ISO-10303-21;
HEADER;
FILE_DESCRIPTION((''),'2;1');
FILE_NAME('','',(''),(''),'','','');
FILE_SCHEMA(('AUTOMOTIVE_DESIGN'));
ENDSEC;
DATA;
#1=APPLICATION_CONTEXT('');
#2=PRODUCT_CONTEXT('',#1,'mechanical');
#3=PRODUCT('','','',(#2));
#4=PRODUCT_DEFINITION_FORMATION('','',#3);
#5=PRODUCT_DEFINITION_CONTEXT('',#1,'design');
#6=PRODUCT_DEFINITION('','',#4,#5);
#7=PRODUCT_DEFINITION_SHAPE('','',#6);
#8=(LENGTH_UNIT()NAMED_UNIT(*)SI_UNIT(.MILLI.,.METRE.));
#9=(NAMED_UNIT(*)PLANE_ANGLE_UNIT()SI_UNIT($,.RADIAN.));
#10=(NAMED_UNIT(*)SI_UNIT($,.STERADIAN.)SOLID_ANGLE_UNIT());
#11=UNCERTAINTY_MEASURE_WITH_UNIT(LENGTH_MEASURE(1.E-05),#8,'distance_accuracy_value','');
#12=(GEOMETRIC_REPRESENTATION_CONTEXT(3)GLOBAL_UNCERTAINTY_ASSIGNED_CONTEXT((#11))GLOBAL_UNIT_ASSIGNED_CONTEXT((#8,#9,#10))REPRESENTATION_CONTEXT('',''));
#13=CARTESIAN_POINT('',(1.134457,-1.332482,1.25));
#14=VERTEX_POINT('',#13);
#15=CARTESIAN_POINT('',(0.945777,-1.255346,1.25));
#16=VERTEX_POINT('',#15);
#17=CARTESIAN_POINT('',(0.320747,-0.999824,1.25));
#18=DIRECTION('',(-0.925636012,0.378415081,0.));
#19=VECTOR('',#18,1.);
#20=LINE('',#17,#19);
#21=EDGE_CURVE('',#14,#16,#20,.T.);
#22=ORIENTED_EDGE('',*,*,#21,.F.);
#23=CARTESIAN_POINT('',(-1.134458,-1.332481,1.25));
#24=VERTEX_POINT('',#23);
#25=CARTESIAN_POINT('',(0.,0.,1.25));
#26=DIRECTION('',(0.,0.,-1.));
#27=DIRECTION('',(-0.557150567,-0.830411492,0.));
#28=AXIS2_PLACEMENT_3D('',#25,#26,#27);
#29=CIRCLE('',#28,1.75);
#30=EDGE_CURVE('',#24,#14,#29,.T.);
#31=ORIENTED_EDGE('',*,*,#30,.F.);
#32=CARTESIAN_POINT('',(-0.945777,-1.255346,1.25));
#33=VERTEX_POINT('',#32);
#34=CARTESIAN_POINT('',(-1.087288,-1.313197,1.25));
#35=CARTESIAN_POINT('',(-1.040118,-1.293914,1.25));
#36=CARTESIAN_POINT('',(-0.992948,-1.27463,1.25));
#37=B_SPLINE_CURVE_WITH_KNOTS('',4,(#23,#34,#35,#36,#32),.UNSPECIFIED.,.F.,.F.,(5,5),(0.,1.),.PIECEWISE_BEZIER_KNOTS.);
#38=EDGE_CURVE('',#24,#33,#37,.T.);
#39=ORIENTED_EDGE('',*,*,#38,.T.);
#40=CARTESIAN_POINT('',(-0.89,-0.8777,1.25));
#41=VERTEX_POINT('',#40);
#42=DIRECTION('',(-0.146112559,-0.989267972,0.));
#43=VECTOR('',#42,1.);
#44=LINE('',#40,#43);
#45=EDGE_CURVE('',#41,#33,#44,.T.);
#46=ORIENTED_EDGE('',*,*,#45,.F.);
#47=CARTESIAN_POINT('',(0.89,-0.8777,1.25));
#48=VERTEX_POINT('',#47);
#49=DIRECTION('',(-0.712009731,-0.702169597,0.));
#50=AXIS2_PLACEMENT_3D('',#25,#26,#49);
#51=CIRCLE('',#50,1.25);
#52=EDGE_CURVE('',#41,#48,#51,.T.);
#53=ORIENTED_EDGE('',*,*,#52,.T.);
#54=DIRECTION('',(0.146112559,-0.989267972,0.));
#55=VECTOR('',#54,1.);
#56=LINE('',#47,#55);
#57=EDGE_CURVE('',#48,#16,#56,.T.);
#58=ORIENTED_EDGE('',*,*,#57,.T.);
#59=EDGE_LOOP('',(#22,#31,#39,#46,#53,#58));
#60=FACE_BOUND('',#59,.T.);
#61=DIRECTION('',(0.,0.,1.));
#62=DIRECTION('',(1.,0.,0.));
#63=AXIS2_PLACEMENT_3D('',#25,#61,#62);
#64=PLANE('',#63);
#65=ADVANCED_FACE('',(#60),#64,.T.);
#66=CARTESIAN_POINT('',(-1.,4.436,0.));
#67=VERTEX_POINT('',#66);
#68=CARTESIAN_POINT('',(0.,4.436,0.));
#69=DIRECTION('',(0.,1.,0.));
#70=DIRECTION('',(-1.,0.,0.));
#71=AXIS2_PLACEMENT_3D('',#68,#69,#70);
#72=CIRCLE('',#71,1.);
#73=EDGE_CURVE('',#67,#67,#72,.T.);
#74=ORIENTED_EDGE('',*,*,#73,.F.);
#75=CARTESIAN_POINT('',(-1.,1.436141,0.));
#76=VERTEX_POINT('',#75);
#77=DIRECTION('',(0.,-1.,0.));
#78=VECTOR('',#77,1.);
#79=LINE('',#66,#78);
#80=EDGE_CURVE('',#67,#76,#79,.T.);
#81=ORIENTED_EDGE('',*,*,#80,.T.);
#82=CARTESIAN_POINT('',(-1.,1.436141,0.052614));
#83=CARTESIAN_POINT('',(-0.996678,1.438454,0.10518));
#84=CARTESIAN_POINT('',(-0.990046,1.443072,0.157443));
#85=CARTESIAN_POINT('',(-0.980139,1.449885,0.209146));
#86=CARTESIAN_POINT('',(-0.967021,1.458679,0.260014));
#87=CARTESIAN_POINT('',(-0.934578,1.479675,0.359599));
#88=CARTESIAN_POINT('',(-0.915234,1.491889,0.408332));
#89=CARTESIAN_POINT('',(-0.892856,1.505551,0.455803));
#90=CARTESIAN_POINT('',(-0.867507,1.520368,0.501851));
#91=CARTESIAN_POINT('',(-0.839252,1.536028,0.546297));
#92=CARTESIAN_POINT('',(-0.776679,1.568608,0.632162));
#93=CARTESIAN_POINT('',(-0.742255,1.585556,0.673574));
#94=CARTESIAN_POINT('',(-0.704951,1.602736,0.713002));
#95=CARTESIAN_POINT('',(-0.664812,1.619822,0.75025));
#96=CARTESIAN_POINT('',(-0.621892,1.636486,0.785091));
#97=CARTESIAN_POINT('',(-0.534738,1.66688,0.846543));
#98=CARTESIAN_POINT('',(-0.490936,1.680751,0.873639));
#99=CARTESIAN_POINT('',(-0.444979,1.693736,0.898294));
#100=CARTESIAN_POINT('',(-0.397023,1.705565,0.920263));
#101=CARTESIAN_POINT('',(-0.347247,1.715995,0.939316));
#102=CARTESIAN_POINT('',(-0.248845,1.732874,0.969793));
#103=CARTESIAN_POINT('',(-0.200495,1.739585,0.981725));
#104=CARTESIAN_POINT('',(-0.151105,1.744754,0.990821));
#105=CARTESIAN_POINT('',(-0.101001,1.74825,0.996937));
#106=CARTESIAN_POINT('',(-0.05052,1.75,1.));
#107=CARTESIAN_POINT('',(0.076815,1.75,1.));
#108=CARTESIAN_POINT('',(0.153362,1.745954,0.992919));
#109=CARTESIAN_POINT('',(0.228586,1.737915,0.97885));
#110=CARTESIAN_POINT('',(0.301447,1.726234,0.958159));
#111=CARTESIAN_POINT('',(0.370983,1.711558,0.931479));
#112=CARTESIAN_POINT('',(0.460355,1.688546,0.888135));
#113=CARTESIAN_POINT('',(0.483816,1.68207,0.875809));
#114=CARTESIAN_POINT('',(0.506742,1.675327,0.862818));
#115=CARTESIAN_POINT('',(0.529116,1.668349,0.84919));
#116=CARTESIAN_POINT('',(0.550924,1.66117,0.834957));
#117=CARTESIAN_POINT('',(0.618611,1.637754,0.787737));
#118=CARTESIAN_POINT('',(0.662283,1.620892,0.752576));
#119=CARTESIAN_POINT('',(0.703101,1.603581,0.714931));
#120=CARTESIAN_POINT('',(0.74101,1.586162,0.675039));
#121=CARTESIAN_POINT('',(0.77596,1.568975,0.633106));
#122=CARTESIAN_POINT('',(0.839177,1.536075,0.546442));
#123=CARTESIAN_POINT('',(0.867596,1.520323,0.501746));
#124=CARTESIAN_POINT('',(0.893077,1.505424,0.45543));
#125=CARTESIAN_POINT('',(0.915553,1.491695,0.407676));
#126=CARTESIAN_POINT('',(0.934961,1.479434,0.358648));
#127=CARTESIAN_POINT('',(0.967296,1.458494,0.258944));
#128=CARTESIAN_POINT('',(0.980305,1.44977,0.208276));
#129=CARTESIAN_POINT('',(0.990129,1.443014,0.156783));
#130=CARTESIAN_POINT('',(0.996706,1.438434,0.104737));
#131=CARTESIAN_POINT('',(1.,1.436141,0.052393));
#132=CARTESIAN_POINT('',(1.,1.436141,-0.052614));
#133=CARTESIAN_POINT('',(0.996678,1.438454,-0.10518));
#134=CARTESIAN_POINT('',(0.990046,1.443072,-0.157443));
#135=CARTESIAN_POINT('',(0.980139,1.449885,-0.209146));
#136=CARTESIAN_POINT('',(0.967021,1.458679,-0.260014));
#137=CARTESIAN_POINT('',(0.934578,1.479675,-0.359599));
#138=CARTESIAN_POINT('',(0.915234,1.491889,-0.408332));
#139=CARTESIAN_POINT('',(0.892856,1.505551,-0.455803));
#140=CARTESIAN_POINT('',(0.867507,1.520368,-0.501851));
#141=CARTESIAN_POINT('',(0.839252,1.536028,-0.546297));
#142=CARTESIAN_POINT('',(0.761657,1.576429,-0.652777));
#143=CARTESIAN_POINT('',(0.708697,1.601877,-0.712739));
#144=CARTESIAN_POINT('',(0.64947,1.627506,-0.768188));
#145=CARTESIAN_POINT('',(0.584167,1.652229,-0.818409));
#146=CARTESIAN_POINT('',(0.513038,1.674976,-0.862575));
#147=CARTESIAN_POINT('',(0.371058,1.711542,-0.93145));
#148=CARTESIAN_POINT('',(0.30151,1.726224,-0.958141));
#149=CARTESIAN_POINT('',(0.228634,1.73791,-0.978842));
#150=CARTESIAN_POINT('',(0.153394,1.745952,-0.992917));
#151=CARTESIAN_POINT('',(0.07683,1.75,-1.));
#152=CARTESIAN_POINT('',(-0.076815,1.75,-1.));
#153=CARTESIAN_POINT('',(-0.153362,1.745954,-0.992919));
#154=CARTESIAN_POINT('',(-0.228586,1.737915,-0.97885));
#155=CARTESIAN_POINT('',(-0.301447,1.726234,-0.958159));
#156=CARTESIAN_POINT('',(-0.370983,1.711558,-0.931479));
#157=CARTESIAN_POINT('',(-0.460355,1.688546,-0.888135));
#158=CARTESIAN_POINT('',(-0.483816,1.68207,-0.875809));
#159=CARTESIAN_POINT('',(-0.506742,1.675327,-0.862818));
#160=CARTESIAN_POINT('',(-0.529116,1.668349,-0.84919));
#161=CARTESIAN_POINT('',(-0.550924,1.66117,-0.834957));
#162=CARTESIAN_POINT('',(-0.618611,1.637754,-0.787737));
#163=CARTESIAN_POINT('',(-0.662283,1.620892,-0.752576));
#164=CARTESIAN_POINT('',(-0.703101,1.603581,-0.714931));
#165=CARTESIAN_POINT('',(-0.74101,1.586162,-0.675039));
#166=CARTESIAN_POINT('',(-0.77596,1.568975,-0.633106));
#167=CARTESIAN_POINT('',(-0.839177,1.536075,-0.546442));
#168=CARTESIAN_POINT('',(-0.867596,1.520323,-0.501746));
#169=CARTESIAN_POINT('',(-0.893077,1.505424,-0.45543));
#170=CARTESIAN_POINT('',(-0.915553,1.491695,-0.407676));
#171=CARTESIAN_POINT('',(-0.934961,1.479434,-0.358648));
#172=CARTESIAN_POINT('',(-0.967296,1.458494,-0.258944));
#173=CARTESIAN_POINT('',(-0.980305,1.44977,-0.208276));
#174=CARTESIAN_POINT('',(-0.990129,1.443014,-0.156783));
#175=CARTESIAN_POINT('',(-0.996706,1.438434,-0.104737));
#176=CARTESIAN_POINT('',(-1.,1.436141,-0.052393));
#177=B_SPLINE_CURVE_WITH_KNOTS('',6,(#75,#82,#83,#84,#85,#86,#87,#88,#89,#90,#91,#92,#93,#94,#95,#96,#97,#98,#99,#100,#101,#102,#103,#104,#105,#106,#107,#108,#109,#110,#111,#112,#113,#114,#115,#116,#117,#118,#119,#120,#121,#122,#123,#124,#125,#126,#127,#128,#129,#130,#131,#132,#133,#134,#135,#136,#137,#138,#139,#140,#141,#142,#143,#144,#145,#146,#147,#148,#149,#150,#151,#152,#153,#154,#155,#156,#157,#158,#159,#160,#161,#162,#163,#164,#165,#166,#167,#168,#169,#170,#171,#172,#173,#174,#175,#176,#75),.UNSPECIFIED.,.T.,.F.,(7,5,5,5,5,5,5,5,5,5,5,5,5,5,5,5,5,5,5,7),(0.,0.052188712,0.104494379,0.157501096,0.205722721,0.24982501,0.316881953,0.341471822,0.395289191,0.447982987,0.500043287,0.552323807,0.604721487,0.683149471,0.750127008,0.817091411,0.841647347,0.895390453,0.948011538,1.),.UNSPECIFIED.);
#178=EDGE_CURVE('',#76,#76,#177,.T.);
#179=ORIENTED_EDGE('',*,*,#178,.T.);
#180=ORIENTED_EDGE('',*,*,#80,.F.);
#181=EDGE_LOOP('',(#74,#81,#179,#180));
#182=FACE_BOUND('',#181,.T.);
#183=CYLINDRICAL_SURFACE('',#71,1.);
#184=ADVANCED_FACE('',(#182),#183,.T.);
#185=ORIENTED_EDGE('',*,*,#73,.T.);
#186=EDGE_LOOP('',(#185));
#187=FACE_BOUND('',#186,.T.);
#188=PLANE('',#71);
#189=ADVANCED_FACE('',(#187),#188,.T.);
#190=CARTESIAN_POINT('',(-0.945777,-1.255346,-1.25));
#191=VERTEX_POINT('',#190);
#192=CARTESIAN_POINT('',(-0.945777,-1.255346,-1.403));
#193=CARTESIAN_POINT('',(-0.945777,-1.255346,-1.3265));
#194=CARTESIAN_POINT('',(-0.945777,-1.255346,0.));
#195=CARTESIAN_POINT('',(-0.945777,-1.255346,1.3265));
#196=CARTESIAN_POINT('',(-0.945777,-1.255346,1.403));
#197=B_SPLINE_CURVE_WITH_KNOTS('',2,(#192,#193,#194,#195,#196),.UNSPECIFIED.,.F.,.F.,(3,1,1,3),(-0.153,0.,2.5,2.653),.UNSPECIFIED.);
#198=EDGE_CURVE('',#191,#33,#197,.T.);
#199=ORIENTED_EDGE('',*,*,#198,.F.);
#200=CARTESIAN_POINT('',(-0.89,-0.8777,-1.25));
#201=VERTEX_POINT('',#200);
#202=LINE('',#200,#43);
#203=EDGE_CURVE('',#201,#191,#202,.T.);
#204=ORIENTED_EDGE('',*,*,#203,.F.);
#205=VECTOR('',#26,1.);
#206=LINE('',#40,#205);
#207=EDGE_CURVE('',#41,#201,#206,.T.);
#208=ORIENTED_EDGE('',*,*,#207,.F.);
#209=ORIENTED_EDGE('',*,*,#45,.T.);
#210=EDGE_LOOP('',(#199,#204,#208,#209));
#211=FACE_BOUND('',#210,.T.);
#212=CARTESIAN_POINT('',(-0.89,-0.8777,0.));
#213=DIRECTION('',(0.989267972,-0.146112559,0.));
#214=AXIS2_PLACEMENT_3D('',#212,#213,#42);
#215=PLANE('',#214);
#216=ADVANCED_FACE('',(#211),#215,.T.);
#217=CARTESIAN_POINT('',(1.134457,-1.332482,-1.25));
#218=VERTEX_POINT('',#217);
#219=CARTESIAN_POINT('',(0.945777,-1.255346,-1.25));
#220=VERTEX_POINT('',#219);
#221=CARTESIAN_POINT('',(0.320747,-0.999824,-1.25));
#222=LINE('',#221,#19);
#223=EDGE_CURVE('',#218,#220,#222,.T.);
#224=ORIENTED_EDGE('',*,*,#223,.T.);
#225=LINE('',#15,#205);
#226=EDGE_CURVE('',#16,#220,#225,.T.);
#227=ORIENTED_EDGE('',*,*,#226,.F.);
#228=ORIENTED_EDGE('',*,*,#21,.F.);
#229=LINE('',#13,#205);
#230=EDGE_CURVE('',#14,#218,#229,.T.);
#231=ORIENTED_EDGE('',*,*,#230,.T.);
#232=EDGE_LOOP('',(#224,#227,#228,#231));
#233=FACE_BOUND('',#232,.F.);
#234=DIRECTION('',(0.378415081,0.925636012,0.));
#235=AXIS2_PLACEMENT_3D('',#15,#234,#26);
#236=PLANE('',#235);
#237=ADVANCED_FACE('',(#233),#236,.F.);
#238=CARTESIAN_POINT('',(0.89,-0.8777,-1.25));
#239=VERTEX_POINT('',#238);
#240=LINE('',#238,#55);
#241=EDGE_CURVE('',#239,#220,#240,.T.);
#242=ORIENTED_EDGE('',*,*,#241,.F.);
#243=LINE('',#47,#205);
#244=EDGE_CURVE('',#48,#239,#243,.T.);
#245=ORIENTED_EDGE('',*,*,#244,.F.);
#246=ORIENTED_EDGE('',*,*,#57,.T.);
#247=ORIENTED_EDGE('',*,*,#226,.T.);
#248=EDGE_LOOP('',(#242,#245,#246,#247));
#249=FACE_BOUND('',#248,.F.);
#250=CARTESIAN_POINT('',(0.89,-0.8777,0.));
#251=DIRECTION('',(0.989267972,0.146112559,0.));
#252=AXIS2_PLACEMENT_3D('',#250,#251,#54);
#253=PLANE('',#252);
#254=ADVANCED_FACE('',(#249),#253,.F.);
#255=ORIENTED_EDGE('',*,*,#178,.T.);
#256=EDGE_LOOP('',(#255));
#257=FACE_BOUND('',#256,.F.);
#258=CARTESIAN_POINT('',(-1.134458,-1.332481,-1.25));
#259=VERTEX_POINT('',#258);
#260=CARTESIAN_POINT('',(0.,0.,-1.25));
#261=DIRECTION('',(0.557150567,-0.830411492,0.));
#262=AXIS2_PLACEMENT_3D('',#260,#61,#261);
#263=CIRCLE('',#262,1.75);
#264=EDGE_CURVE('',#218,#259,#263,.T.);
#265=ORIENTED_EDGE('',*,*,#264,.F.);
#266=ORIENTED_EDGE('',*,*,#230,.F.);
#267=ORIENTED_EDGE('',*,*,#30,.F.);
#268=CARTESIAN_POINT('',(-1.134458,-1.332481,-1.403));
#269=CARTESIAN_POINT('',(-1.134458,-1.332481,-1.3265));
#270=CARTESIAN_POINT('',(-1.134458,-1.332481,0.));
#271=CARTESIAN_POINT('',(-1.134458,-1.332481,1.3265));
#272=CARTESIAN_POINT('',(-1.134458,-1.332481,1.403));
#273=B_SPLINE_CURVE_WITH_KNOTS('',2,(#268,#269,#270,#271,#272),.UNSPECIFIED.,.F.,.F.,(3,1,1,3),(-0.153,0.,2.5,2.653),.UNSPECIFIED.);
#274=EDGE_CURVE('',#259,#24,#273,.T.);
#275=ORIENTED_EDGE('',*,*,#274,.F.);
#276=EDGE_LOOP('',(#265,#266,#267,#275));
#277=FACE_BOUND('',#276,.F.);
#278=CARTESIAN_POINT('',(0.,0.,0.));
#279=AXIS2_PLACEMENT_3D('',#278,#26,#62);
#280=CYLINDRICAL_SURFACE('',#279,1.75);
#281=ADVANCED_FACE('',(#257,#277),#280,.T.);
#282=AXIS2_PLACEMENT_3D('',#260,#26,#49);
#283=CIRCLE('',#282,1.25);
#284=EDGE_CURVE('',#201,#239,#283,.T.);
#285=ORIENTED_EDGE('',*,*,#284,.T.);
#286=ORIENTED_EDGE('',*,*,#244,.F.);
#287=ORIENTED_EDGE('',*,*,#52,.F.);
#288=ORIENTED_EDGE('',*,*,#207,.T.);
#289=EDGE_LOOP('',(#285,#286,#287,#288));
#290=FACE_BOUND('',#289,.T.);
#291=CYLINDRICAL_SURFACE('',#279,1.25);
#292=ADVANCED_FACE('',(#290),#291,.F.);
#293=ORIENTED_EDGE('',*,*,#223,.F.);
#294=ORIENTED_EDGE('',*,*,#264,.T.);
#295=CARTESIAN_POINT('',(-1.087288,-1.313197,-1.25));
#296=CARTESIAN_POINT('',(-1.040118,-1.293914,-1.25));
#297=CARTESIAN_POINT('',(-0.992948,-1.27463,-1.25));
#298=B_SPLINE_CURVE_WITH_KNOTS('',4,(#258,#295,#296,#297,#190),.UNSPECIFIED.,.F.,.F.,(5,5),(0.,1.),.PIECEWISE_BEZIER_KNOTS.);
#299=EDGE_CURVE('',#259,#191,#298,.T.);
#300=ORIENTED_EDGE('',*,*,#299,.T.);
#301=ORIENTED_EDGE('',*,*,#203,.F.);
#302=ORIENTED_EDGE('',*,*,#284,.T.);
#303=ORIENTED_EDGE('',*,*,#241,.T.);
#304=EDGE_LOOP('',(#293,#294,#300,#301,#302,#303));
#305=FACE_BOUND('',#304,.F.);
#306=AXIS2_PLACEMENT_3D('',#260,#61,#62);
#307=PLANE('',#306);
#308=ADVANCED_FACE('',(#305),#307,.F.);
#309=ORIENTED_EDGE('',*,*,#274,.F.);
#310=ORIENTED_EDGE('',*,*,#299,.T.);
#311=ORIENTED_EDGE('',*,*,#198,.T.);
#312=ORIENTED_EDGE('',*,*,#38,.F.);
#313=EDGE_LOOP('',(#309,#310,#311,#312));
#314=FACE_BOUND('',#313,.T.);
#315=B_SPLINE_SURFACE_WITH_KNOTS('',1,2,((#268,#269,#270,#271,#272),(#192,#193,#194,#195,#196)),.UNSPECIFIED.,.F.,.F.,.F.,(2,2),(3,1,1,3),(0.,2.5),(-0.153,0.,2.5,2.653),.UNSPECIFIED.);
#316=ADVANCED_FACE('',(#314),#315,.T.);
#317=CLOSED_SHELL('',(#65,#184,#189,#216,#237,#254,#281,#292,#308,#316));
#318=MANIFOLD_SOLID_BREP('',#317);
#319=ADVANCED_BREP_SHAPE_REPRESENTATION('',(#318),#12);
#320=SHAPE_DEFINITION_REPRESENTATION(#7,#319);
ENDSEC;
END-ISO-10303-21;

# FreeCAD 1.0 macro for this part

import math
import FreeCAD as App
import Part
import Sketcher
Q = App.Units.Quantity


def edges_at(feature, points):
    """Names of the edges that pass closest to the given points."""
    edges = feature.Shape.Edges
    near = lambda p: min(range(len(edges)), key=lambda i: edges[i].distToShape(Part.Vertex(*p))[0])
    return sorted({f"Edge{near(p) + 1}" for p in points})

doc = App.newDocument("Part")
body = doc.addObject("PartDesign::Body", "Body")

# Sketch on XY plane
sketch1 = body.newObject("Sketcher::SketchObject", "Sketch")
sketch1.AttachmentSupport = (doc.getObject("XY_Plane"), [""])
sketch1.MapMode = "FlatFace"
sketch1.addGeometry(Part.ArcOfCircle(Part.Circle(App.Vector(0, 0, 0), App.Vector(0, 0, 1), 1.75), math.radians(-56.141031), math.radians(236.141031)), False)
sketch1.addGeometry(Part.LineSegment(App.Vector(-0.975, -1.4532, 0), App.Vector(-0.89, -0.8777, 0)), False)
sketch1.addGeometry(Part.ArcOfCircle(Part.Circle(App.Vector(0, 0, 0), App.Vector(0, 0, 1), 1.25), math.radians(-44.601331), math.radians(224.601331)), False)
sketch1.addGeometry(Part.LineSegment(App.Vector(0.89, -0.8777, 0), App.Vector(0.975, -1.4532, 0)), False)
sketch1.addConstraint(Sketcher.Constraint("Coincident", 0, 2, 1, 1))
sketch1.addConstraint(Sketcher.Constraint("Coincident", 1, 2, 2, 2))
sketch1.addConstraint(Sketcher.Constraint("Coincident", 2, 1, 3, 1))
sketch1.addConstraint(Sketcher.Constraint("Coincident", 3, 2, 0, 1))
sketch1.addConstraint(Sketcher.Constraint("Coincident", 0, 3, -1, 1))
sketch1.addConstraint(Sketcher.Constraint("Coincident", 2, 3, -1, 1))
sketch1.addConstraint(Sketcher.Constraint("Horizontal", 1, 2, 2, 1))
sketch1.addConstraint(Sketcher.Constraint("Horizontal", 0, 2, 3, 2))
sketch1.addConstraint(Sketcher.Constraint("Radius", 0, Q("1.75 mm")))
sketch1.addConstraint(Sketcher.Constraint("Radius", 2, Q("1.25 mm")))
sketch1.addConstraint(Sketcher.Constraint("DistanceX", 1, 2, 2, 1, Q("1.78 mm")))
sketch1.addConstraint(Sketcher.Constraint("DistanceX", 0, 2, 3, 2, Q("1.95 mm")))
pad1 = body.newObject("PartDesign::Pad", "Pad")
pad1.Profile = sketch1
pad1.Length = 2.5
pad1.Midplane = True
doc.recompute()

chamfer = body.newObject("PartDesign::Chamfer", "Chamfer")
chamfer.Base = (pad1, edges_at(pad1, [(-0.975, -1.453, 0), (0.975, -1.453, 0)]))
chamfer.Size = 0.2

# Sketch on XZ plane
sketch2 = body.newObject("Sketcher::SketchObject", "Sketch001")
sketch2.AttachmentSupport = (doc.getObject("XZ_Plane"), [""])
sketch2.MapMode = "FlatFace"
sketch2.AttachmentOffset = App.Placement(App.Vector(0, 0, -4.436), App.Rotation())
sketch2.addGeometry(Part.Circle(App.Vector(0, 0, 0), App.Vector(0, 0, 1), 1), False)
sketch2.addConstraint(Sketcher.Constraint("Coincident", 0, 3, -1, 1))
sketch2.addConstraint(Sketcher.Constraint("Diameter", 0, Q("2 mm")))
pad2 = body.newObject("PartDesign::Pad", "Pad001")
pad2.Profile = sketch2
pad2.Type = "UpToFirst"

doc.recompute()
